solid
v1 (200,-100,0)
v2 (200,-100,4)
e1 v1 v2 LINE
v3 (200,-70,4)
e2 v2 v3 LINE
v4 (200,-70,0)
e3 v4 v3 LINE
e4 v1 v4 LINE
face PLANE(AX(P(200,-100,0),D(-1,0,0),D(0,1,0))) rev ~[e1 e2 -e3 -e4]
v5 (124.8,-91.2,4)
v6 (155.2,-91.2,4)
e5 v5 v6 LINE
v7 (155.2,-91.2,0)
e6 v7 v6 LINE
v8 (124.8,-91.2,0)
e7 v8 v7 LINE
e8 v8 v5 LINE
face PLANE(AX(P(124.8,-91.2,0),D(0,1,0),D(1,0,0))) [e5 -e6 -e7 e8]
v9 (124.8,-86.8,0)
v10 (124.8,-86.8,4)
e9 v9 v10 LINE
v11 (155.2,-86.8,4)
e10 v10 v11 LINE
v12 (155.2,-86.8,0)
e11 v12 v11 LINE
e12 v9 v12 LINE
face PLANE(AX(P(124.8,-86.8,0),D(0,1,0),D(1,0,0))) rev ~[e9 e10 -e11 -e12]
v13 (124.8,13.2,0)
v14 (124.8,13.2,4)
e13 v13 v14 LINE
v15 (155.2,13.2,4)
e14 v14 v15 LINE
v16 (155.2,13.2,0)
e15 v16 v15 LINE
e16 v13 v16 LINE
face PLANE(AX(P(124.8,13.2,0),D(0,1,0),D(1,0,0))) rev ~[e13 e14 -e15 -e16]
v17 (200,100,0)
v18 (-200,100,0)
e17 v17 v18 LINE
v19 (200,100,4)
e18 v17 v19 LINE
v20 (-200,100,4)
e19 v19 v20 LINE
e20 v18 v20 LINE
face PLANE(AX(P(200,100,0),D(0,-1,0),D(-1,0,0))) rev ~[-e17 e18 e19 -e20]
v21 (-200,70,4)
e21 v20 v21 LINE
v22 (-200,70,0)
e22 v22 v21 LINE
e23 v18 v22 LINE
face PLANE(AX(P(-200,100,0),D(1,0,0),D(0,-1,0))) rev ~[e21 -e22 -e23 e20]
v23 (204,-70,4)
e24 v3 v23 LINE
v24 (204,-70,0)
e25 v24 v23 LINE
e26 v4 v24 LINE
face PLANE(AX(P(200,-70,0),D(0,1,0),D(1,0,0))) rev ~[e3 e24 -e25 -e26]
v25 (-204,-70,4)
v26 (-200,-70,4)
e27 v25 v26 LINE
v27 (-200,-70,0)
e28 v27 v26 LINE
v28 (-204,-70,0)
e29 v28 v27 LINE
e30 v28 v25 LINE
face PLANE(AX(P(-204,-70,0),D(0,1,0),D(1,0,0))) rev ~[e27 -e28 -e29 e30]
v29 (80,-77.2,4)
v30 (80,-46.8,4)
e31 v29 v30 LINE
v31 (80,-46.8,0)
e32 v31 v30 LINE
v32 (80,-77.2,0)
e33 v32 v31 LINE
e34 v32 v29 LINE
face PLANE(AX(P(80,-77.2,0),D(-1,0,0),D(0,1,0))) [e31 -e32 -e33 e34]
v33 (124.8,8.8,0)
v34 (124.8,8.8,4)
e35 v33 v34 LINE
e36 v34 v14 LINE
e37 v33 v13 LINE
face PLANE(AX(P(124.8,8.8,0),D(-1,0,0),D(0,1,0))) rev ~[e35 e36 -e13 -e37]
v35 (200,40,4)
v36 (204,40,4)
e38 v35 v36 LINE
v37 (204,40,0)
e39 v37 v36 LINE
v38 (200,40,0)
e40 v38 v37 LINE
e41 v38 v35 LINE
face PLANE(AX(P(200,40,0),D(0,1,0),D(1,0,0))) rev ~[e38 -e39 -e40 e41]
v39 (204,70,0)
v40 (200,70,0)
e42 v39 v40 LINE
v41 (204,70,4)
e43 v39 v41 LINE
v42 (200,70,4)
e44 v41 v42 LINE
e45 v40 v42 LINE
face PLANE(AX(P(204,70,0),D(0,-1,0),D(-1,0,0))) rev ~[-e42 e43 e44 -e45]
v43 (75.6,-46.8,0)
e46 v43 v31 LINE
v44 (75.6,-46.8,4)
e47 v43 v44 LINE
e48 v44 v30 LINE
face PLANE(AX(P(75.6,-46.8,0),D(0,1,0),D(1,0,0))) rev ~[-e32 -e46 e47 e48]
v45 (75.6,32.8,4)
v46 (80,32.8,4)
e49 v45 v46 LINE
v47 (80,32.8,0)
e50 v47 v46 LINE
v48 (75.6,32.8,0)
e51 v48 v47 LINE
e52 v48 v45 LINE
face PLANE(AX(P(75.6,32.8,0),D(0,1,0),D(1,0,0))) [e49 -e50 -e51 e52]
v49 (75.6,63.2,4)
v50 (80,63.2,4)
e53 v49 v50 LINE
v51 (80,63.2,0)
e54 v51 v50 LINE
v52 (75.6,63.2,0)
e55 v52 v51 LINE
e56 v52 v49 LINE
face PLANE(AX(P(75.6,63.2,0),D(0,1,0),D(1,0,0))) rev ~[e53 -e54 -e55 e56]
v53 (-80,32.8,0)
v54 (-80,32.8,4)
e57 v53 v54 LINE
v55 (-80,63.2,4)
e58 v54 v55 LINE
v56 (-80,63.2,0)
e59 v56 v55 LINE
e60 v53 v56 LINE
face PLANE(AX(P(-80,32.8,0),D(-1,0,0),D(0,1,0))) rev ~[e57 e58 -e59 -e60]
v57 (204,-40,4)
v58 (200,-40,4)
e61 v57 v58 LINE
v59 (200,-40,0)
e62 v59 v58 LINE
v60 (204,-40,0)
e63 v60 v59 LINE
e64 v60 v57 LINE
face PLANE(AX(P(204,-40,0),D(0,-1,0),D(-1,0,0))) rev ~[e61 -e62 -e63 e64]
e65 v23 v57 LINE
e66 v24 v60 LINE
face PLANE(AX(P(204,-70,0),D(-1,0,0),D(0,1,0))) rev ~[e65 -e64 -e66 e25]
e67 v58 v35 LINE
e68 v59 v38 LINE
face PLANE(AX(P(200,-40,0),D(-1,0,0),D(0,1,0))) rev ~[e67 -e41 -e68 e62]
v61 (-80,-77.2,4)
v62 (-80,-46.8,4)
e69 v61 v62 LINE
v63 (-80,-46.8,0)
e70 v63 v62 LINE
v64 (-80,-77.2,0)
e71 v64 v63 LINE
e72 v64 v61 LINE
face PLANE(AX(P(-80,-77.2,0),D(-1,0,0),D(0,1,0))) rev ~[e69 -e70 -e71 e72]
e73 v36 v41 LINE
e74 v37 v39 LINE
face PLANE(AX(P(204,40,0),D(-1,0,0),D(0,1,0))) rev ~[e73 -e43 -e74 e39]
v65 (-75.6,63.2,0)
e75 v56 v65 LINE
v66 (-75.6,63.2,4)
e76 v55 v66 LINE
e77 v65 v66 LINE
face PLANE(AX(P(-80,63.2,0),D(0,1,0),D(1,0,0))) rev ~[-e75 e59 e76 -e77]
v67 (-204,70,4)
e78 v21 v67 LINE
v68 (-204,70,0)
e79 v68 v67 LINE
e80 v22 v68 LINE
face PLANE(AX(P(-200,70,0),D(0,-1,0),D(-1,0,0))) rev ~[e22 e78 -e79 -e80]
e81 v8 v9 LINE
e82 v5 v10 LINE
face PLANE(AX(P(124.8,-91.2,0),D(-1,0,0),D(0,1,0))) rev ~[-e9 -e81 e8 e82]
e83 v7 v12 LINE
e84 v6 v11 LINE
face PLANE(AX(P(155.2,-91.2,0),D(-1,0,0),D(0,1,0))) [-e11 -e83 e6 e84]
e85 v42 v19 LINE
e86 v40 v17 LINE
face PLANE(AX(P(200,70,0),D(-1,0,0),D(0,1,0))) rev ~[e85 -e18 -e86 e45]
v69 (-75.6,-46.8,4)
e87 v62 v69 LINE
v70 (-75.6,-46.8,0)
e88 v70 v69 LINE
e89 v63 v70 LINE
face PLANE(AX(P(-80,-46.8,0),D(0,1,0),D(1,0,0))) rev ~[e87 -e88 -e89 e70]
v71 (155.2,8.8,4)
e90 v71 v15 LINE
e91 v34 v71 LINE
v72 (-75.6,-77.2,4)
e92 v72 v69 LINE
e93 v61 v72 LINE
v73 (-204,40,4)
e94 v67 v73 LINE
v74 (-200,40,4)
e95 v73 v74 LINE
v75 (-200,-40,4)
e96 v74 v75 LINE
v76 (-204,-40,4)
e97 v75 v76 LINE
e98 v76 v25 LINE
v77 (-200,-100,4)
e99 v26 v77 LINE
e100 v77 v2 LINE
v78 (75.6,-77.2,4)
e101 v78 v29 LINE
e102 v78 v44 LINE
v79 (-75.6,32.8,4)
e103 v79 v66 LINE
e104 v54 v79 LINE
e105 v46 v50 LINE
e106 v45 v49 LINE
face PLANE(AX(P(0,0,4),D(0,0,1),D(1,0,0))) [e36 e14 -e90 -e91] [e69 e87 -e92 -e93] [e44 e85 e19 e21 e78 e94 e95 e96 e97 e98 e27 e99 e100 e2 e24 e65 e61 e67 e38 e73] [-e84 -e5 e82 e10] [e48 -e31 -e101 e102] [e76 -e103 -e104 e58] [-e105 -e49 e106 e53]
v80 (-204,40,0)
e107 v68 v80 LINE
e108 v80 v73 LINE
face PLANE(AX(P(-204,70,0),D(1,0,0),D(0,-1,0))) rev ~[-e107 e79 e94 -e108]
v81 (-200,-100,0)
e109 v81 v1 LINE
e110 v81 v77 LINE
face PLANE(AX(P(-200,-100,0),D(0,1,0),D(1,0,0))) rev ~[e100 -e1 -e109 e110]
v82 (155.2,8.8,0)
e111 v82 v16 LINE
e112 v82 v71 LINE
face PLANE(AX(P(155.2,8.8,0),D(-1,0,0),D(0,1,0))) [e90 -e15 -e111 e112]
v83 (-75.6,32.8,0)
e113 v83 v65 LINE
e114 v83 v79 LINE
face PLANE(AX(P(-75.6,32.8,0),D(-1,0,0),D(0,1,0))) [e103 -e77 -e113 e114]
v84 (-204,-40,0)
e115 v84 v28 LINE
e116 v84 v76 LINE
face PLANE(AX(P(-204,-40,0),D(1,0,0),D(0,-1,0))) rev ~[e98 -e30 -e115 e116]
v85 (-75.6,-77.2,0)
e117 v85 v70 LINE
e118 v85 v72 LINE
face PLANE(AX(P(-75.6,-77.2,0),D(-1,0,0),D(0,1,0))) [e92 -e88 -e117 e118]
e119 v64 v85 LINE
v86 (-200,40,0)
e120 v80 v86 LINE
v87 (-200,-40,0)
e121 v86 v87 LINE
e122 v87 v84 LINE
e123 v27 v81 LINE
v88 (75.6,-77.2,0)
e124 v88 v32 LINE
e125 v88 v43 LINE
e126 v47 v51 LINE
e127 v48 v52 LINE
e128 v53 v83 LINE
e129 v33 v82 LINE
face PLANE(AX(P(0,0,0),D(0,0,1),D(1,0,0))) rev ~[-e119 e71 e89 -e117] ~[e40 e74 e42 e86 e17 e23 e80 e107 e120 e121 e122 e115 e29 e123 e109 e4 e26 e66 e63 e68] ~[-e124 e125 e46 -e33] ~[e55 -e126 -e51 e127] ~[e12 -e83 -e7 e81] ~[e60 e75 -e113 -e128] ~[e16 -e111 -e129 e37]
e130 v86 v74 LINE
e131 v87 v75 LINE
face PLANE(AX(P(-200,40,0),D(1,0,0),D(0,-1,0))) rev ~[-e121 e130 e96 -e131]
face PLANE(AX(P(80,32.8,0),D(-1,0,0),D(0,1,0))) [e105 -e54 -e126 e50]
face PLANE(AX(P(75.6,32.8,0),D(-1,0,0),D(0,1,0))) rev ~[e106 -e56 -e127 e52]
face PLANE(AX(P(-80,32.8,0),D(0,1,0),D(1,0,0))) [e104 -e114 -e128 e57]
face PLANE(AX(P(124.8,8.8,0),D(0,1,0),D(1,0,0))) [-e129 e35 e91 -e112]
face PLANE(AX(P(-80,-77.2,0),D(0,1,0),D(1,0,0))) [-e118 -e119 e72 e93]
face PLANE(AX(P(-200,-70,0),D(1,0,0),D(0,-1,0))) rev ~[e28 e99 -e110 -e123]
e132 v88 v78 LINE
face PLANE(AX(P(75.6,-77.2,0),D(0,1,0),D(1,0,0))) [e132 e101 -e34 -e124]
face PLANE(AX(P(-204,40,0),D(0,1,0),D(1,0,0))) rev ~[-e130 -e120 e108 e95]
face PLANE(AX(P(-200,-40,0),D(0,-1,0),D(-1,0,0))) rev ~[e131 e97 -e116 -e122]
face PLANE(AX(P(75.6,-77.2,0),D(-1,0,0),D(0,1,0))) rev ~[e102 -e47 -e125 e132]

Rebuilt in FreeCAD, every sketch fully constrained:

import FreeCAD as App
import Part
import Sketcher

doc = App.newDocument("Part")
body = doc.addObject("PartDesign::Body", "Body")

# Sketch on XY plane
sketch1 = body.newObject("Sketcher::SketchObject", "Sketch")
sketch1.AttachmentSupport = (doc.getObject("XY_Plane"), [""])
sketch1.MapMode = "FlatFace"
sketch1.addGeometry([
    Part.LineSegment(App.Vector(200, 100, 0), App.Vector(-200, 100, 0)),  # 0
    Part.LineSegment(App.Vector(-200, 100, 0), App.Vector(-200, 70, 0)),  # 1
    Part.LineSegment(App.Vector(-200, 70, 0), App.Vector(-204, 70, 0)),  # 2
    Part.LineSegment(App.Vector(-204, 70, 0), App.Vector(-204, 40, 0)),  # 3
    Part.LineSegment(App.Vector(-204, 40, 0), App.Vector(-200, 40, 0)),  # 4
    Part.LineSegment(App.Vector(-200, 40, 0), App.Vector(-200, -40, 0)),  # 5
    Part.LineSegment(App.Vector(-200, -40, 0), App.Vector(-204, -40, 0)),  # 6
    Part.LineSegment(App.Vector(-204, -40, 0), App.Vector(-204, -70, 0)),  # 7
    Part.LineSegment(App.Vector(-204, -70, 0), App.Vector(-200, -70, 0)),  # 8
    Part.LineSegment(App.Vector(-200, -70, 0), App.Vector(-200, -100, 0)),  # 9
    Part.LineSegment(App.Vector(-200, -100, 0), App.Vector(200, -100, 0)),  # 10
    Part.LineSegment(App.Vector(200, -100, 0), App.Vector(200, -70, 0)),  # 11
    Part.LineSegment(App.Vector(200, -70, 0), App.Vector(204, -70, 0)),  # 12
    Part.LineSegment(App.Vector(204, -70, 0), App.Vector(204, -40, 0)),  # 13
    Part.LineSegment(App.Vector(204, -40, 0), App.Vector(200, -40, 0)),  # 14
    Part.LineSegment(App.Vector(200, -40, 0), App.Vector(200, 40, 0)),  # 15
    Part.LineSegment(App.Vector(200, 40, 0), App.Vector(204, 40, 0)),  # 16
    Part.LineSegment(App.Vector(204, 40, 0), App.Vector(204, 70, 0)),  # 17
    Part.LineSegment(App.Vector(204, 70, 0), App.Vector(200, 70, 0)),  # 18
    Part.LineSegment(App.Vector(200, 70, 0), App.Vector(200, 100, 0)),  # 19
    Part.LineSegment(App.Vector(-75.6, -77.2, 0), App.Vector(-80, -77.2, 0)),  # 20
    Part.LineSegment(App.Vector(-80, -77.2, 0), App.Vector(-80, -46.8, 0)),  # 21
    Part.LineSegment(App.Vector(-80, -46.8, 0), App.Vector(-75.6, -46.8, 0)),  # 22
    Part.LineSegment(App.Vector(-75.6, -46.8, 0), App.Vector(-75.6, -77.2, 0)),  # 23
    Part.LineSegment(App.Vector(80, -77.2, 0), App.Vector(75.6, -77.2, 0)),  # 24
    Part.LineSegment(App.Vector(75.6, -77.2, 0), App.Vector(75.6, -46.8, 0)),  # 25
    Part.LineSegment(App.Vector(75.6, -46.8, 0), App.Vector(80, -46.8, 0)),  # 26
    Part.LineSegment(App.Vector(80, -46.8, 0), App.Vector(80, -77.2, 0)),  # 27
    Part.LineSegment(App.Vector(155.2, -91.2, 0), App.Vector(124.8, -91.2, 0)),  # 28
    Part.LineSegment(App.Vector(124.8, -91.2, 0), App.Vector(124.8, -86.8, 0)),  # 29
    Part.LineSegment(App.Vector(124.8, -86.8, 0), App.Vector(155.2, -86.8, 0)),  # 30
    Part.LineSegment(App.Vector(155.2, -86.8, 0), App.Vector(155.2, -91.2, 0)),  # 31
    Part.LineSegment(App.Vector(-75.6, 32.8, 0), App.Vector(-80, 32.8, 0)),  # 32
    Part.LineSegment(App.Vector(-80, 32.8, 0), App.Vector(-80, 63.2, 0)),  # 33
    Part.LineSegment(App.Vector(-80, 63.2, 0), App.Vector(-75.6, 63.2, 0)),  # 34
    Part.LineSegment(App.Vector(-75.6, 63.2, 0), App.Vector(-75.6, 32.8, 0)),  # 35
    Part.LineSegment(App.Vector(155.2, 8.8, 0), App.Vector(124.8, 8.8, 0)),  # 36
    Part.LineSegment(App.Vector(124.8, 8.8, 0), App.Vector(124.8, 13.2, 0)),  # 37
    Part.LineSegment(App.Vector(124.8, 13.2, 0), App.Vector(155.2, 13.2, 0)),  # 38
    Part.LineSegment(App.Vector(155.2, 13.2, 0), App.Vector(155.2, 8.8, 0)),  # 39
    Part.LineSegment(App.Vector(80, 32.8, 0), App.Vector(75.6, 32.8, 0)),  # 40
    Part.LineSegment(App.Vector(75.6, 32.8, 0), App.Vector(75.6, 63.2, 0)),  # 41
    Part.LineSegment(App.Vector(75.6, 63.2, 0), App.Vector(80, 63.2, 0)),  # 42
    Part.LineSegment(App.Vector(80, 63.2, 0), App.Vector(80, 32.8, 0)),  # 43
], False)
sketch1.addConstraint([
    Sketcher.Constraint("Coincident", 0, 2, 1, 1),
    Sketcher.Constraint("Coincident", 1, 2, 2, 1),
    Sketcher.Constraint("Coincident", 2, 2, 3, 1),
    Sketcher.Constraint("Coincident", 3, 2, 4, 1),
    Sketcher.Constraint("Coincident", 4, 2, 5, 1),
    Sketcher.Constraint("Coincident", 5, 2, 6, 1),
    Sketcher.Constraint("Coincident", 6, 2, 7, 1),
    Sketcher.Constraint("Coincident", 7, 2, 8, 1),
    Sketcher.Constraint("Coincident", 8, 2, 9, 1),
    Sketcher.Constraint("Coincident", 9, 2, 10, 1),
    Sketcher.Constraint("Coincident", 10, 2, 11, 1),
    Sketcher.Constraint("Coincident", 11, 2, 12, 1),
    Sketcher.Constraint("Coincident", 12, 2, 13, 1),
    Sketcher.Constraint("Coincident", 13, 2, 14, 1),
    Sketcher.Constraint("Coincident", 14, 2, 15, 1),
    Sketcher.Constraint("Coincident", 15, 2, 16, 1),
    Sketcher.Constraint("Coincident", 16, 2, 17, 1),
    Sketcher.Constraint("Coincident", 17, 2, 18, 1),
    Sketcher.Constraint("Coincident", 18, 2, 19, 1),
    Sketcher.Constraint("Coincident", 19, 2, 0, 1),
    Sketcher.Constraint("Coincident", 20, 2, 21, 1),
    Sketcher.Constraint("Coincident", 21, 2, 22, 1),
    Sketcher.Constraint("Coincident", 22, 2, 23, 1),
    Sketcher.Constraint("Coincident", 23, 2, 20, 1),
    Sketcher.Constraint("Coincident", 24, 2, 25, 1),
    Sketcher.Constraint("Coincident", 25, 2, 26, 1),
    Sketcher.Constraint("Coincident", 26, 2, 27, 1),
    Sketcher.Constraint("Coincident", 27, 2, 24, 1),
    Sketcher.Constraint("Coincident", 28, 2, 29, 1),
    Sketcher.Constraint("Coincident", 29, 2, 30, 1),
    Sketcher.Constraint("Coincident", 30, 2, 31, 1),
    Sketcher.Constraint("Coincident", 31, 2, 28, 1),
    Sketcher.Constraint("Coincident", 32, 2, 33, 1),
    Sketcher.Constraint("Coincident", 33, 2, 34, 1),
    Sketcher.Constraint("Coincident", 34, 2, 35, 1),
    Sketcher.Constraint("Coincident", 35, 2, 32, 1),
    Sketcher.Constraint("Coincident", 36, 2, 37, 1),
    Sketcher.Constraint("Coincident", 37, 2, 38, 1),
    Sketcher.Constraint("Coincident", 38, 2, 39, 1),
    Sketcher.Constraint("Coincident", 39, 2, 36, 1),
    Sketcher.Constraint("Coincident", 40, 2, 41, 1),
    Sketcher.Constraint("Coincident", 41, 2, 42, 1),
    Sketcher.Constraint("Coincident", 42, 2, 43, 1),
    Sketcher.Constraint("Coincident", 43, 2, 40, 1),
    Sketcher.Constraint("Horizontal", 0),
    Sketcher.Constraint("Vertical", 1),
    Sketcher.Constraint("Horizontal", 2),
    Sketcher.Constraint("Vertical", 3),
    Sketcher.Constraint("Horizontal", 4),
    Sketcher.Constraint("Vertical", 5),
    Sketcher.Constraint("Horizontal", 6),
    Sketcher.Constraint("Vertical", 7),
    Sketcher.Constraint("Horizontal", 8),
    Sketcher.Constraint("Vertical", 9),
    Sketcher.Constraint("Horizontal", 10),
    Sketcher.Constraint("Vertical", 11),
    Sketcher.Constraint("Horizontal", 12),
    Sketcher.Constraint("Vertical", 13),
    Sketcher.Constraint("Horizontal", 14),
    Sketcher.Constraint("Vertical", 15),
    Sketcher.Constraint("Horizontal", 16),
    Sketcher.Constraint("Vertical", 17),
    Sketcher.Constraint("Horizontal", 18),
    Sketcher.Constraint("Vertical", 19),
    Sketcher.Constraint("Horizontal", 20),
    Sketcher.Constraint("Vertical", 21),
    Sketcher.Constraint("Horizontal", 22),
    Sketcher.Constraint("Vertical", 23),
    Sketcher.Constraint("Horizontal", 24),
    Sketcher.Constraint("Vertical", 25),
    Sketcher.Constraint("Horizontal", 26),
    Sketcher.Constraint("Vertical", 27),
    Sketcher.Constraint("Horizontal", 28),
    Sketcher.Constraint("Vertical", 29),
    Sketcher.Constraint("Horizontal", 30),
    Sketcher.Constraint("Vertical", 31),
    Sketcher.Constraint("Horizontal", 32),
    Sketcher.Constraint("Vertical", 33),
    Sketcher.Constraint("Horizontal", 34),
    Sketcher.Constraint("Vertical", 35),
    Sketcher.Constraint("Horizontal", 36),
    Sketcher.Constraint("Vertical", 37),
    Sketcher.Constraint("Horizontal", 38),
    Sketcher.Constraint("Vertical", 39),
    Sketcher.Constraint("Horizontal", 40),
    Sketcher.Constraint("Vertical", 41),
    Sketcher.Constraint("Horizontal", 42),
    Sketcher.Constraint("Vertical", 43),
    Sketcher.Constraint("Symmetric", 0, 2, 10, 2, -1, 1),
    Sketcher.Constraint("Symmetric", 2, 2, 12, 2, -1, 1),
    Sketcher.Constraint("Symmetric", 4, 2, 14, 2, -1, 1),
    Sketcher.Constraint("Symmetric", 6, 2, 16, 2, -1, 1),
    Sketcher.Constraint("Symmetric", 8, 2, 18, 2, -1, 1),
    Sketcher.Constraint("Symmetric", 8, 2, 11, 2, -2),
    Sketcher.Constraint("Symmetric", 6, 2, 13, 2, -2),
    Sketcher.Constraint("Symmetric", 23, 2, 24, 2, -2),
    Sketcher.Constraint("Symmetric", 21, 2, 26, 2, -2),
    Sketcher.Constraint("Symmetric", 35, 2, 40, 2, -2),
    Sketcher.Constraint("Symmetric", 33, 2, 42, 2, -2),
    Sketcher.Constraint("Vertical", 1, 2, 4, 2),
    Sketcher.Constraint("Vertical", 21, 2, 32, 2),
    Sketcher.Constraint("Vertical", 23, 2, 34, 2),
    Sketcher.Constraint("Vertical", 29, 2, 36, 2),
    Sketcher.Constraint("Vertical", 31, 2, 38, 2),
    Sketcher.Constraint("Equal", 1, 3),
    Sketcher.Constraint("Equal", 38, 21),
    Sketcher.Constraint("Equal", 42, 29),
    Sketcher.Constraint("Equal", 27, 33),
    Sketcher.Constraint("Equal", 31, 37),
    Sketcher.Constraint("DistanceX", 0, 2, 0, 1, 400.0),
    Sketcher.Constraint("DistanceX", 2, 2, 2, 1, 4.0),
    Sketcher.Constraint("DistanceY", 1, 2, 1, 1, 30.0),
    Sketcher.Constraint("DistanceY", 5, 2, 5, 1, 80.0),
    Sketcher.Constraint("DistanceX", 20, 2, 20, 1, 4.4),
    Sketcher.Constraint("DistanceX", 28, 2, 28, 1, 30.4),
    Sketcher.Constraint("DistanceX", 20, 2, -1, 1, 80.0),
    Sketcher.Constraint("DistanceY", 28, 2, 27, 2, 14.0),
    Sketcher.Constraint("DistanceY", 20, 2, 32, 2, 110.0),
    Sketcher.Constraint("DistanceY", 26, 2, 37, 2, 60.0),
    Sketcher.Constraint("DistanceY", 20, 2, -1, 1, 77.2),
    Sketcher.Constraint("DistanceX", -1, 1, 28, 2, 124.8),
])
pad1 = body.newObject("PartDesign::Pad", "Pad")
pad1.Profile = sketch1
pad1.Length = 4

doc.recompute()
